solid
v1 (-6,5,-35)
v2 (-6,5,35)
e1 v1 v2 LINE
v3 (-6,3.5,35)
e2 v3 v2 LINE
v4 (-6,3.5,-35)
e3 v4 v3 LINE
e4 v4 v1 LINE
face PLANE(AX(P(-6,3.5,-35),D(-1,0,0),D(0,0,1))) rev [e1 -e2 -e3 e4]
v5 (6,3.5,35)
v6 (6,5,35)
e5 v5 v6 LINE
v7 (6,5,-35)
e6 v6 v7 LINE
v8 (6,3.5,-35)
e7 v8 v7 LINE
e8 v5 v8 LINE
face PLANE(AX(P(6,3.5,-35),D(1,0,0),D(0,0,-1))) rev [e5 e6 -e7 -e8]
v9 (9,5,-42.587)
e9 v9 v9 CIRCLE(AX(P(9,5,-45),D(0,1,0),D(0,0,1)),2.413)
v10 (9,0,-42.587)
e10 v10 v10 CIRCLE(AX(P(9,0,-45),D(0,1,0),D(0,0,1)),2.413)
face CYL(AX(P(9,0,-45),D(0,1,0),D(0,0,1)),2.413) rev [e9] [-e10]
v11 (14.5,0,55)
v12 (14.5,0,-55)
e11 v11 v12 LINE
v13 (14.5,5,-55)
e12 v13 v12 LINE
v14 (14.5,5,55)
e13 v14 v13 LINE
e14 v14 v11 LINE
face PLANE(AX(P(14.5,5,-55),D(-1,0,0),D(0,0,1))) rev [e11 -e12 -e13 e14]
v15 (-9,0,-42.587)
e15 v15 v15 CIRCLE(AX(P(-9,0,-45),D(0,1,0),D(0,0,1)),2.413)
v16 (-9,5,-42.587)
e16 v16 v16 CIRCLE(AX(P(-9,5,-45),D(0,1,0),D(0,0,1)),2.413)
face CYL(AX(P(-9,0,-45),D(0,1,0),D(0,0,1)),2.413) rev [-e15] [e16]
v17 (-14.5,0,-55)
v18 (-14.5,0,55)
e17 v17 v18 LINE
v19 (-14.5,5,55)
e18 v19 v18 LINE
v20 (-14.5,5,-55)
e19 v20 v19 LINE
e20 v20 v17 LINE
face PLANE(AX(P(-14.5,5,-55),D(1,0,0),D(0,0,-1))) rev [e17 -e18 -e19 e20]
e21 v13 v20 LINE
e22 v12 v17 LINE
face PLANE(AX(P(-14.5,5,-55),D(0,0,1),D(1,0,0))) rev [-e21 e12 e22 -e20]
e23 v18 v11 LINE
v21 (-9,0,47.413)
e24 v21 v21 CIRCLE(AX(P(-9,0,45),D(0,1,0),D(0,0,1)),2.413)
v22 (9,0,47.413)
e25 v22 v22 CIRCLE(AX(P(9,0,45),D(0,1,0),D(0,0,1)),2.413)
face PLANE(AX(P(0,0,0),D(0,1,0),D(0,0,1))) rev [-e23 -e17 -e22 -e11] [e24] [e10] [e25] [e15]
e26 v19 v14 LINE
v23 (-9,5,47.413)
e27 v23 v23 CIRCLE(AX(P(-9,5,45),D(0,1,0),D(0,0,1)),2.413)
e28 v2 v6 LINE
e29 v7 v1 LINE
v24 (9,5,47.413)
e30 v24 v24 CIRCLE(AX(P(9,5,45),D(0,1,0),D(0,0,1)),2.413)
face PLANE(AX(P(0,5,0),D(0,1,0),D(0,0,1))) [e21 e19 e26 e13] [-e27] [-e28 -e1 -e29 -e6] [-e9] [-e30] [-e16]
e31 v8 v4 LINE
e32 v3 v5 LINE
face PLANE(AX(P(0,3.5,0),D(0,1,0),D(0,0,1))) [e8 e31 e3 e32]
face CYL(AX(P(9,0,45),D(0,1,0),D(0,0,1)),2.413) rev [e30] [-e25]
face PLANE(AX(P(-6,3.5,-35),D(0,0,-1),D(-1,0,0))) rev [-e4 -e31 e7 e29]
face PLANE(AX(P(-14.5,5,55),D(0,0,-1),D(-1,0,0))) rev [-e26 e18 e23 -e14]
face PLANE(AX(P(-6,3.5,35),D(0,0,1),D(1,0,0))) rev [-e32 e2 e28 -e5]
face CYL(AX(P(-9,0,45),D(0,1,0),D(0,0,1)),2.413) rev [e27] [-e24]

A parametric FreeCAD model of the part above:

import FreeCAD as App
import Part
import Sketcher
from FreeCAD import Vector
Q = App.Units.Quantity


def add_polygon(sketch, points):
    """Adds a closed chain of lines whose ends are joined by coincident constraints."""
    first, n = sketch.GeometryCount, len(points)
    for a, b in zip(points, points[1:] + points[:1]):
        sketch.addGeometry(Part.LineSegment(App.Vector(*a, 0), App.Vector(*b, 0)), False)
    for i in range(n):
        sketch.addConstraint(Sketcher.Constraint("Coincident", first + i, 2, first + (i + 1) % n, 1))

doc = App.newDocument("Part")
body = doc.addObject("PartDesign::Body", "Body")

sketch1 = body.newObject("Sketcher::SketchObject", "Sketch")
sketch1.AttachmentSupport = (doc.getObject("XZ_Plane"), [""])
sketch1.MapMode = "FlatFace"
add_polygon(sketch1, [(-14.5, -55), (-14.5, 55), (14.5, 55), (14.5, -55)])
sketch1.addConstraint(Sketcher.Constraint("Vertical", 0))
sketch1.addConstraint(Sketcher.Constraint("Horizontal", 1))
sketch1.addConstraint(Sketcher.Constraint("Vertical", 2))
sketch1.addConstraint(Sketcher.Constraint("Horizontal", 3))
sketch1.addConstraint(Sketcher.Constraint("Symmetric", 0, 2, 2, 2, -1, 1))
sketch1.addConstraint(Sketcher.Constraint("DistanceX", 1, 1, 1, 2, Q("29 mm")))
sketch1.addConstraint(Sketcher.Constraint("DistanceY", 0, 1, 0, 2, Q("110 mm")))
pad1 = body.newObject("PartDesign::Pad", "Pad")
pad1.Profile = sketch1
pad1.Length = 5
pad1.Reversed = True

sketch2 = body.newObject("Sketcher::SketchObject", "Sketch001")
sketch2.AttachmentSupport = (doc.getObject("XZ_Plane"), [""])
sketch2.MapMode = "FlatFace"
sketch2.AttachmentOffset = App.Placement(Vector(0, 0, -5), App.Rotation())
sketch2.addGeometry(Part.Circle(Vector(-9, -45, 0), Vector(0, 0, 1), 2.413), False)
sketch2.addGeometry(Part.Circle(Vector(9, -45, 0), Vector(0, 0, 1), 2.413), False)
sketch2.addGeometry(Part.Circle(Vector(9, 45, 0), Vector(0, 0, 1), 2.413), False)
sketch2.addGeometry(Part.Circle(Vector(-9, 45, 0), Vector(0, 0, 1), 2.413), False)
sketch2.addConstraint(Sketcher.Constraint("Equal", 0, 1))
sketch2.addConstraint(Sketcher.Constraint("Equal", 1, 2))
sketch2.addConstraint(Sketcher.Constraint("Equal", 2, 3))
sketch2.addConstraint(Sketcher.Constraint("Symmetric", 0, 3, 2, 3, -1, 1))
sketch2.addConstraint(Sketcher.Constraint("Symmetric", 1, 3, 3, 3, -1, 1))
sketch2.addConstraint(Sketcher.Constraint("Symmetric", 0, 3, 1, 3, -2))
sketch2.addConstraint(Sketcher.Constraint("Diameter", 0, Q("4.826 mm")))
sketch2.addConstraint(Sketcher.Constraint("DistanceX", 0, 3, -1, 1, Q("9 mm")))
sketch2.addConstraint(Sketcher.Constraint("DistanceY", 0, 3, -1, 1, Q("45 mm")))
pocket1 = body.newObject("PartDesign::Pocket", "Pocket")
pocket1.Profile = sketch2
pocket1.Type = "ThroughAll"
pocket1.Reversed = True

sketch3 = body.newObject("Sketcher::SketchObject", "Sketch002")
sketch3.AttachmentSupport = (doc.getObject("XZ_Plane"), [""])
sketch3.MapMode = "FlatFace"
sketch3.AttachmentOffset = App.Placement(Vector(0, 0, -5), App.Rotation())
add_polygon(sketch3, [(-6, -35), (-6, 35), (6, 35), (6, -35)])
sketch3.addConstraint(Sketcher.Constraint("Vertical", 0))
sketch3.addConstraint(Sketcher.Constraint("Horizontal", 1))
sketch3.addConstraint(Sketcher.Constraint("Vertical", 2))
sketch3.addConstraint(Sketcher.Constraint("Horizontal", 3))
sketch3.addConstraint(Sketcher.Constraint("Symmetric", 0, 2, 2, 2, -1, 1))
sketch3.addConstraint(Sketcher.Constraint("DistanceX", 1, 1, 1, 2, Q("12 mm")))
sketch3.addConstraint(Sketcher.Constraint("DistanceY", 0, 1, 0, 2, Q("70 mm")))
pocket2 = body.newObject("PartDesign::Pocket", "Pocket001")
pocket2.Profile = sketch3
pocket2.Length = 1.5
pocket2.Reversed = True

doc.recompute()
